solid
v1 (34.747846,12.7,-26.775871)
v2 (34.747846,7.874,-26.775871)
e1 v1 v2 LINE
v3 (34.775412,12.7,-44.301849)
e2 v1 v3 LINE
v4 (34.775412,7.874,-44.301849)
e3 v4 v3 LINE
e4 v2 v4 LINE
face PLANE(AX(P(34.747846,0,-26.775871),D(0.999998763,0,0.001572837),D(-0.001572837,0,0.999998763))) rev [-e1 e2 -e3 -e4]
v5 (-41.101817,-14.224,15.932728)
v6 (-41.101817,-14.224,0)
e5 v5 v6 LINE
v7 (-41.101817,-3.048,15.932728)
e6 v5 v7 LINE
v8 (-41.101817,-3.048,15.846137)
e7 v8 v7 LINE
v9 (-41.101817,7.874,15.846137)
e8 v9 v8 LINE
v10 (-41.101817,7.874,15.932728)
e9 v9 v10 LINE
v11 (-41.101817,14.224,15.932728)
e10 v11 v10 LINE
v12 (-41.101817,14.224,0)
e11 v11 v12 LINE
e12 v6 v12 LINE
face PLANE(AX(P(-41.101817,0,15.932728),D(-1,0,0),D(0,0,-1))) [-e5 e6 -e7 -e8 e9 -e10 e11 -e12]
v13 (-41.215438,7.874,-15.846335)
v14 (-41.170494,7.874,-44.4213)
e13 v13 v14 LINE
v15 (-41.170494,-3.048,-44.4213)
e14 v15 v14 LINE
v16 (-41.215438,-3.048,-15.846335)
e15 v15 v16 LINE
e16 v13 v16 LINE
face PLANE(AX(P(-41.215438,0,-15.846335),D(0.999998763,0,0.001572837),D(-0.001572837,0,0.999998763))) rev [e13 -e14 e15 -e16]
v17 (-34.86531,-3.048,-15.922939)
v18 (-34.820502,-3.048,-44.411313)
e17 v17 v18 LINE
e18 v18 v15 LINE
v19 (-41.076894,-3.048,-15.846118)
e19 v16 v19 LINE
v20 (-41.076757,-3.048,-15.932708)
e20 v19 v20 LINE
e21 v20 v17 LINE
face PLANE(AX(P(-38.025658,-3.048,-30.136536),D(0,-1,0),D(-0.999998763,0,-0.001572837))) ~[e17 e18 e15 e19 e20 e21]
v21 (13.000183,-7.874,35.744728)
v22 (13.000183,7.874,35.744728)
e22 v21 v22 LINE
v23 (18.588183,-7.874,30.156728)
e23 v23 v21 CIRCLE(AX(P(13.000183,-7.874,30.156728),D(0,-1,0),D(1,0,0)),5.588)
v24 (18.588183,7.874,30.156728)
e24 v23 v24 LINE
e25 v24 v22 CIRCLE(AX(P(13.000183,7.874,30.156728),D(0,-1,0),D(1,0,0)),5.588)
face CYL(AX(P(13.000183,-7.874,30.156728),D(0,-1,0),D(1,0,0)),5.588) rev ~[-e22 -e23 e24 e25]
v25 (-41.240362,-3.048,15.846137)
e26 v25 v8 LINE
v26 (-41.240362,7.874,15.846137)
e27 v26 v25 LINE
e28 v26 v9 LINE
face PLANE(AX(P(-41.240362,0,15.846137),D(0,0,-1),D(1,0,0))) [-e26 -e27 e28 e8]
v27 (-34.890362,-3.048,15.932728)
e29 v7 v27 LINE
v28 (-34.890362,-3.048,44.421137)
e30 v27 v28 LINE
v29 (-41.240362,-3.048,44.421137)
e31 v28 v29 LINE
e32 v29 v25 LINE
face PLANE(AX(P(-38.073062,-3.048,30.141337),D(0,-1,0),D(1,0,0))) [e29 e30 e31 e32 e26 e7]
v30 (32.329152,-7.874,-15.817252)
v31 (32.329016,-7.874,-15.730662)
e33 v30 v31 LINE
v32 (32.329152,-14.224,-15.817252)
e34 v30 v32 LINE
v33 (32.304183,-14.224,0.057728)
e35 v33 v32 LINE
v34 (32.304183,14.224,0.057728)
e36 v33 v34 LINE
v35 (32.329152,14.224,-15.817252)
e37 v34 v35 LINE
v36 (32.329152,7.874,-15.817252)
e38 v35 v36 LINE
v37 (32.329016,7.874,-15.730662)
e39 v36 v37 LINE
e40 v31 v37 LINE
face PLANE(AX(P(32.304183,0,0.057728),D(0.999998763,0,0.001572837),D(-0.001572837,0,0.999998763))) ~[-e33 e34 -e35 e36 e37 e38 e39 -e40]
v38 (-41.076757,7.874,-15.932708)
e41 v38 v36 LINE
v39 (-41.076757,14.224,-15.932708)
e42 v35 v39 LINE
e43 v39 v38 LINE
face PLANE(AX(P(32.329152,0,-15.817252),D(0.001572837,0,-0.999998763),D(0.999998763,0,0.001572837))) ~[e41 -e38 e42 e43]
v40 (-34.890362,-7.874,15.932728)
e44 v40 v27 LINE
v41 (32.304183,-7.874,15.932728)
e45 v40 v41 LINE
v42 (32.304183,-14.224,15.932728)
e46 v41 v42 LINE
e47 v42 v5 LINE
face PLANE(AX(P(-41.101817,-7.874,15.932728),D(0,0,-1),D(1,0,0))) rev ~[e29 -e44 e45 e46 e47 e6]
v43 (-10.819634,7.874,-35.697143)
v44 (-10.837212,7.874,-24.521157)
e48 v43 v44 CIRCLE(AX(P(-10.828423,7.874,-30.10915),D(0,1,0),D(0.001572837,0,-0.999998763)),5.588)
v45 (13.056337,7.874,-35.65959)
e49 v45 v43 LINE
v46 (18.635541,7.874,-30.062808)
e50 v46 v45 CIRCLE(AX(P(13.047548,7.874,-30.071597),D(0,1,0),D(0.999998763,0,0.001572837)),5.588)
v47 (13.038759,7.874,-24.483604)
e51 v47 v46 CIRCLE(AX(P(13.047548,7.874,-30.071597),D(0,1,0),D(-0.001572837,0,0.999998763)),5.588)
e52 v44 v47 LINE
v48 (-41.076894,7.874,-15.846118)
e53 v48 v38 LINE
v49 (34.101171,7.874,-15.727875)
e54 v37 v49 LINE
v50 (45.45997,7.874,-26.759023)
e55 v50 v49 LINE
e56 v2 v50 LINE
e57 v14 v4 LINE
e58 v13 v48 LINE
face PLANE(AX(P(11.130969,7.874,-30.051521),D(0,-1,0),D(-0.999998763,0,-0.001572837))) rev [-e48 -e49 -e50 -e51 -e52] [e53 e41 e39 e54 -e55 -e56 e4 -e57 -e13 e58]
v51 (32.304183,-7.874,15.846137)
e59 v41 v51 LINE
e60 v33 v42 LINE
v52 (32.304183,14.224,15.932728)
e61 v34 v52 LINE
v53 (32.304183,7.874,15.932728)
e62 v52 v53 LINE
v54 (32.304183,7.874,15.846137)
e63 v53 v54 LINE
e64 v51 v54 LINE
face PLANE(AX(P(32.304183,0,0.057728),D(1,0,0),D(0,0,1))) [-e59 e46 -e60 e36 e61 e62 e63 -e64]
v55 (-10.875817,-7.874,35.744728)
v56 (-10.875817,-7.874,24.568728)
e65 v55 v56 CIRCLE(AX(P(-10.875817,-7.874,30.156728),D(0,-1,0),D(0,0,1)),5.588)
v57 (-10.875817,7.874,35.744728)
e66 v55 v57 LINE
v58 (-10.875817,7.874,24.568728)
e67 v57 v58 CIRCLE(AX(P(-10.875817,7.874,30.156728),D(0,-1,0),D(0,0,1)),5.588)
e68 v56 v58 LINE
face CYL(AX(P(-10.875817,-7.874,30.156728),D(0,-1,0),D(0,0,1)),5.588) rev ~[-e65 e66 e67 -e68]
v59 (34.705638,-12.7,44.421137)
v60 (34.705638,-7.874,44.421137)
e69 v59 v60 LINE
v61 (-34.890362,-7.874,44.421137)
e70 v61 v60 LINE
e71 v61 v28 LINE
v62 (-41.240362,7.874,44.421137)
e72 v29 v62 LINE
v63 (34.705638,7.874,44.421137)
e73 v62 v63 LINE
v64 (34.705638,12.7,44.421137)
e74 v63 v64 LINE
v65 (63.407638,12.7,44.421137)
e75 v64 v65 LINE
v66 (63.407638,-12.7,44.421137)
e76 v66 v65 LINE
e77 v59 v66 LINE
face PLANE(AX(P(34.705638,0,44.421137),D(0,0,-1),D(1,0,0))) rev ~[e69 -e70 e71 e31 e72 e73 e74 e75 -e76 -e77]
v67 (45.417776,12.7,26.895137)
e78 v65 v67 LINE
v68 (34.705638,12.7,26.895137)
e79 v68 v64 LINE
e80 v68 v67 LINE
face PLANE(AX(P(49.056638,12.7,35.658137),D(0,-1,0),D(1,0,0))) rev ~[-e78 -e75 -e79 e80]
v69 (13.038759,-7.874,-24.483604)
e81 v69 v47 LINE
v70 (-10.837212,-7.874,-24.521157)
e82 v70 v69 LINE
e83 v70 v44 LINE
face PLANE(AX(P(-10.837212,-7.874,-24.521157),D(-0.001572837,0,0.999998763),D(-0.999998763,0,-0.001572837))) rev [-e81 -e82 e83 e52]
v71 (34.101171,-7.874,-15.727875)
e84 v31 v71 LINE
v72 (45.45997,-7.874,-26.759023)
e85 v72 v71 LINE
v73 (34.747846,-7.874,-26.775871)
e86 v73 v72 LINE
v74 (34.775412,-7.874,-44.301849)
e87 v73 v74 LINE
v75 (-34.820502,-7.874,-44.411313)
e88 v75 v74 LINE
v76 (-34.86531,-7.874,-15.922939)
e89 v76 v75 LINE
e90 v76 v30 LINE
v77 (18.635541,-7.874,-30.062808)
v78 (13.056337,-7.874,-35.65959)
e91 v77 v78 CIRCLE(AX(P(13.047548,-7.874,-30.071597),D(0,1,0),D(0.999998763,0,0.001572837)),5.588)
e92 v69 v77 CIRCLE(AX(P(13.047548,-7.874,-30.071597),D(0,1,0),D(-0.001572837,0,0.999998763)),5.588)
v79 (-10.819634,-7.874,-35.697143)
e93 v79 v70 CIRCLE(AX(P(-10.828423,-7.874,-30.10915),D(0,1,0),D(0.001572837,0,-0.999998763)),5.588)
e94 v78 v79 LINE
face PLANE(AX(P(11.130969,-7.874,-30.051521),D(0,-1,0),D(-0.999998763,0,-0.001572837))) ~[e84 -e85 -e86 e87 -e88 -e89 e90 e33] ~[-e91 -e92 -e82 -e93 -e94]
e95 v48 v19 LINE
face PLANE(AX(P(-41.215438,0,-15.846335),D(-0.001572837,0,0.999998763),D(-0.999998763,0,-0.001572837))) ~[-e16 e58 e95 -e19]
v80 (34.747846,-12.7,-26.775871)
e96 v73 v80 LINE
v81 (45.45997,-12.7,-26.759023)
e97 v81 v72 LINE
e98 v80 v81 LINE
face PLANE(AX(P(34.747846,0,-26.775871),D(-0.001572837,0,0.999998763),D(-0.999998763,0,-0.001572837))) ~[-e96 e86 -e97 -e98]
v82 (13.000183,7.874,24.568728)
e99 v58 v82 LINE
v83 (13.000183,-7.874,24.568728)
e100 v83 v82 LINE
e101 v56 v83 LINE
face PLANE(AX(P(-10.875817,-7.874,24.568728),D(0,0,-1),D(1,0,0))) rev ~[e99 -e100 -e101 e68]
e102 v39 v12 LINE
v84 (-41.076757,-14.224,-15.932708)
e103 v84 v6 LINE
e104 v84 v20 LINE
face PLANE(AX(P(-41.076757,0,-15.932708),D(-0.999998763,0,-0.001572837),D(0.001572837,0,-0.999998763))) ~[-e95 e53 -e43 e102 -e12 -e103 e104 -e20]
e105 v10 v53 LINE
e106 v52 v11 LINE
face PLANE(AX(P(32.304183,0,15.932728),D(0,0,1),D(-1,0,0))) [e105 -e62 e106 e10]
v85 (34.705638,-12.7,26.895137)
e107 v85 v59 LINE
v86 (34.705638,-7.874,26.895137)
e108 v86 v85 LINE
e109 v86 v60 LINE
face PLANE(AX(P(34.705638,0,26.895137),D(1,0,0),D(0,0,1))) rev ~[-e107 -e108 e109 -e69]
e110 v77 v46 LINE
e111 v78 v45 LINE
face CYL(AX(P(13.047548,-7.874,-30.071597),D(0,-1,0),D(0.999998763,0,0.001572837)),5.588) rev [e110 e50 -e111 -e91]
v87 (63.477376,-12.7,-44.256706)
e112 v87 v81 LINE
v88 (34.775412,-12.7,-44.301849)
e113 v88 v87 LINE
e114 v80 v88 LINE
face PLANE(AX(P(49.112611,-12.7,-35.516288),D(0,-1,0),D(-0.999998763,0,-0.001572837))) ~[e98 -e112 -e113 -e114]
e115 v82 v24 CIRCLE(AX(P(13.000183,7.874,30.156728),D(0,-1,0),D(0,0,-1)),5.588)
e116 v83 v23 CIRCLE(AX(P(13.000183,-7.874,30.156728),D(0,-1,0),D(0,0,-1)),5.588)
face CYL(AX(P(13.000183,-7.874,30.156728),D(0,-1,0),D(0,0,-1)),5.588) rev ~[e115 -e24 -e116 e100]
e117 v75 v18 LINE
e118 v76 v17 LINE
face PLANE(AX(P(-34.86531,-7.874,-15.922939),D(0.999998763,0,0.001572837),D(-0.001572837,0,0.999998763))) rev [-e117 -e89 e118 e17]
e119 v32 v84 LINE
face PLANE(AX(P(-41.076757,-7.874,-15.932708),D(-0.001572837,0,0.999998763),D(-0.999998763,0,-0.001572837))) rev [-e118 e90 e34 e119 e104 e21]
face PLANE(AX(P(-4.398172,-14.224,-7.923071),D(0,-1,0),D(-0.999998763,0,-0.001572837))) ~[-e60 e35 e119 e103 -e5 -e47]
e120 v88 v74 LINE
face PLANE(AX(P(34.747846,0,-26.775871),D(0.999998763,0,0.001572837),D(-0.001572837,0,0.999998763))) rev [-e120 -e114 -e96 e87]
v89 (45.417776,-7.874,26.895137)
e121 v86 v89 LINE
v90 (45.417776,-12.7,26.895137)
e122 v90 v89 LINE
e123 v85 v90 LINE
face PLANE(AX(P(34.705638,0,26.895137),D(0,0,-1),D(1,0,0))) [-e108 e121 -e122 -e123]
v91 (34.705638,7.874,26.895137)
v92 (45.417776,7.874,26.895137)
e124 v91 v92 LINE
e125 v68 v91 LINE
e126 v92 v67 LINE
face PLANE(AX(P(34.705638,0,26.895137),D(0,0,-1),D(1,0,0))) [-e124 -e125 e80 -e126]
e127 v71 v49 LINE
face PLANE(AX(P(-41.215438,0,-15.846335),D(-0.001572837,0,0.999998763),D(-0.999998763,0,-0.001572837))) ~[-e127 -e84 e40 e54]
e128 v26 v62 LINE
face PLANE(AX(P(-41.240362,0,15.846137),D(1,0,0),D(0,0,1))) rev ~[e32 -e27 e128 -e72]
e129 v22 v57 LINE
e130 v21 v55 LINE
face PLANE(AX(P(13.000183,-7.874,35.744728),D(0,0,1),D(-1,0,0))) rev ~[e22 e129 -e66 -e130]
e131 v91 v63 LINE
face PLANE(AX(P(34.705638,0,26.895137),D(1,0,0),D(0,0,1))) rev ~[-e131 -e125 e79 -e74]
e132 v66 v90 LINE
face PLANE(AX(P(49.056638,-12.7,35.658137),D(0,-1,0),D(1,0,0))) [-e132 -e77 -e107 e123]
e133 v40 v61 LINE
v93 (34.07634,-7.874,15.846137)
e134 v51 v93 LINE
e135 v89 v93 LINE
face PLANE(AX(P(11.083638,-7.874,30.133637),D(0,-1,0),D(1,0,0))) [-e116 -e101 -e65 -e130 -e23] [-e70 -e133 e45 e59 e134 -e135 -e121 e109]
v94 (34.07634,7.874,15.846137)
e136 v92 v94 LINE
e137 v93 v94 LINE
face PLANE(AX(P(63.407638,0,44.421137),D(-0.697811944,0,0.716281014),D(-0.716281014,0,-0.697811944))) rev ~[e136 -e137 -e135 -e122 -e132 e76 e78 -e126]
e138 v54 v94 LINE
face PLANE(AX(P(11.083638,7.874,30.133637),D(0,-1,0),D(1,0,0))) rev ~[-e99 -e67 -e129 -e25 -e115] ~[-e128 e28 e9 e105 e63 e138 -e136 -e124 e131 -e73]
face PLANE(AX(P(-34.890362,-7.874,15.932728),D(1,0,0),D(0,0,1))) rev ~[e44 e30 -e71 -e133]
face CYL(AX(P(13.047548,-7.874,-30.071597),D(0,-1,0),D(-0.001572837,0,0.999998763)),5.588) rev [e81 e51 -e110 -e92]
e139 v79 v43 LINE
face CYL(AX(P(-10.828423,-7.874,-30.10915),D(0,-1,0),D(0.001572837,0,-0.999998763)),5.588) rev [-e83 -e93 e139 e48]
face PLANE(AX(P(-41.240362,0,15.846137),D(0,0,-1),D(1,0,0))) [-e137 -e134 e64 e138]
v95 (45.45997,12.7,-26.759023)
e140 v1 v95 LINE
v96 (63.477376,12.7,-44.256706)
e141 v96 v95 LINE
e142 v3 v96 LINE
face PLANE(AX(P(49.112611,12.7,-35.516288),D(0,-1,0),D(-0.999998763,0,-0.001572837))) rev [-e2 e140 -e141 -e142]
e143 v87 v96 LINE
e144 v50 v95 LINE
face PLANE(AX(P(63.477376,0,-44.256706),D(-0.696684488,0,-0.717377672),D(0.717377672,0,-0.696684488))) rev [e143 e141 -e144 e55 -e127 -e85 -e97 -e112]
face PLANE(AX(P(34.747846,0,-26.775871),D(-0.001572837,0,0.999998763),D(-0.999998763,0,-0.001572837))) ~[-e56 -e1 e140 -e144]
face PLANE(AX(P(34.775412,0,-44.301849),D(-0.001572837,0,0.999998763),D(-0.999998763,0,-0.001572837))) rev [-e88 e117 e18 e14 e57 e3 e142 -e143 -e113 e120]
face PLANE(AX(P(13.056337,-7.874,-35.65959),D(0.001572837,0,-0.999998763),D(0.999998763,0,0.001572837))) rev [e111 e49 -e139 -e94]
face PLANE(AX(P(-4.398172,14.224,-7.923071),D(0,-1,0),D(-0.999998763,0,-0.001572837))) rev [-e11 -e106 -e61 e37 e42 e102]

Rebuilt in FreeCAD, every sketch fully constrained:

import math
import FreeCAD as App
import Part
import Sketcher
from FreeCAD import Vector
Q = App.Units.Quantity


def add_polygon(sketch, points):
    """Adds a closed chain of lines whose ends are joined by coincident constraints."""
    first, n = sketch.GeometryCount, len(points)
    for a, b in zip(points, points[1:] + points[:1]):
        sketch.addGeometry(Part.LineSegment(App.Vector(*a, 0), App.Vector(*b, 0)), False)
    for i in range(n):
        sketch.addConstraint(Sketcher.Constraint("Coincident", first + i, 2, first + (i + 1) % n, 1))

doc = App.newDocument("Part")
body = doc.addObject("PartDesign::Body", "Body")

# Sketch on XZ plane
sketch1 = doc.addObject("Sketcher::SketchObject", "Sketch")
body.addObject(sketch1)
sketch1.AttachmentSupport = (doc.XZ_Plane, [""])
sketch1.MapMode = "FlatFace"
add_polygon(sketch1, [(32.304183, 0.057728), (32.304183, 15.932728), (-41.101817, 15.932728), (-41.101817, 0)])  # lines 0-3
sketch1.addConstraint([
    Sketcher.Constraint("Vertical", 0),
    Sketcher.Constraint("Horizontal", 1),
    Sketcher.Constraint("Vertical", 2),
    Sketcher.Constraint("PointOnObject", 2, 2, -1),
    Sketcher.Constraint("DistanceX", 1, 2, 1, 1, Q("2.89 in")),
    Sketcher.Constraint("DistanceY", 0, 1, 0, 2, Q("0.625 in")),
    Sketcher.Constraint("DistanceY", 2, 2, 2, 1, 15.932728),
    Sketcher.Constraint("DistanceX", -1, 1, 0, 2, 32.304183),
])
pad1 = doc.addObject("PartDesign::Pad", "Pad")
body.addObject(pad1)
pad1.Profile = sketch1
pad1.Length = Q("1.12 in")
pad1.Midplane = True

# Sketch on XZ plane
sketch2 = doc.addObject("Sketcher::SketchObject", "Sketch001")
body.addObject(sketch2)
sketch2.AttachmentSupport = (doc.XZ_Plane, [""])
sketch2.MapMode = "FlatFace"
add_polygon(sketch2, [(-41.240362, 44.421137), (-41.240362, 15.846137), (63.407638, 15.846137), (63.407638, 44.421137)])  # lines 0-3
sketch2.addConstraint([
    Sketcher.Constraint("Vertical", 0),
    Sketcher.Constraint("Horizontal", 1),
    Sketcher.Constraint("Vertical", 2),
    Sketcher.Constraint("Horizontal", 3),
    Sketcher.Constraint("DistanceX", 1, 1, 1, 2, Q("4.12 in")),
    Sketcher.Constraint("DistanceY", 0, 2, 0, 1, Q("1.125 in")),
    Sketcher.Constraint("DistanceX", 0, 2, -1, 1, 41.240362),
    Sketcher.Constraint("DistanceY", -1, 1, 0, 2, 15.846137),
])
pad2 = doc.addObject("PartDesign::Pad", "Pad001")
body.addObject(pad2)
pad2.Profile = sketch2
pad2.Length = Q("0.62 in")
pad2.Midplane = True

# Sketch on XZ plane
sketch3 = doc.addObject("Sketcher::SketchObject", "Sketch002")
body.addObject(sketch3)
sketch3.AttachmentSupport = (doc.XZ_Plane, [""])
sketch3.MapMode = "FlatFace"
sketch3.AttachmentOffset = App.Placement(Vector(0, 0, 0.31 * 25.4), App.Rotation())
add_polygon(sketch3, [(-34.890362, 44.421137), (-41.240362, 44.421137), (-41.240362, 15.846137), (-41.101817, 15.846137), (-41.101817, 15.932728), (-34.890362, 15.932728)])  # lines 0-5
sketch3.addConstraint([
    Sketcher.Constraint("Horizontal", 0),
    Sketcher.Constraint("Vertical", 1),
    Sketcher.Constraint("Horizontal", 2),
    Sketcher.Constraint("Vertical", 3),
    Sketcher.Constraint("Horizontal", 4),
    Sketcher.Constraint("Vertical", 5),
    Sketcher.Constraint("DistanceX", 0, 2, 0, 1, Q("0.25 in")),
    Sketcher.Constraint("DistanceY", 1, 2, 1, 1, Q("1.125 in")),
    Sketcher.Constraint("DistanceY", 3, 1, 3, 2, 0.086591),
    Sketcher.Constraint("DistanceX", 2, 1, 2, 2, 0.138545),
    Sketcher.Constraint("DistanceX", 0, 2, -1, 1, 41.240362),
    Sketcher.Constraint("DistanceY", -1, 1, 0, 2, 44.421137),
])
pocket1 = doc.addObject("PartDesign::Pocket", "Pocket")
body.addObject(pocket1)
pocket1.Profile = sketch3
pocket1.Length = Q("0.19 in")

# Sketch on XZ plane
sketch4 = doc.addObject("Sketcher::SketchObject", "Sketch003")
body.addObject(sketch4)
sketch4.AttachmentSupport = (doc.XZ_Plane, [""])
sketch4.MapMode = "FlatFace"
add_polygon(sketch4, [(34.705638, 44.421137), (34.705638, 26.895137), (63.407638, 26.895137), (63.407638, 44.421137)])  # lines 0-3
sketch4.addConstraint([
    Sketcher.Constraint("Vertical", 0),
    Sketcher.Constraint("Horizontal", 1),
    Sketcher.Constraint("Vertical", 2),
    Sketcher.Constraint("Horizontal", 3),
    Sketcher.Constraint("DistanceX", 1, 1, 1, 2, Q("1.13 in")),
    Sketcher.Constraint("DistanceY", 0, 2, 0, 1, Q("0.69 in")),
    Sketcher.Constraint("DistanceX", -1, 1, 0, 2, 34.705638),
    Sketcher.Constraint("DistanceY", -1, 1, 0, 2, 26.895137),
])
pad3 = doc.addObject("PartDesign::Pad", "Pad002")
body.addObject(pad3)
pad3.Profile = sketch4
pad3.Length = Q("1 in")
pad3.Midplane = True

# Sketch on XZ plane
sketch5 = doc.addObject("Sketcher::SketchObject", "Sketch004")
body.addObject(sketch5)
sketch5.AttachmentSupport = (doc.XZ_Plane, [""])
sketch5.MapMode = "FlatFace"
add_polygon(sketch5, [(63.407638, 44.421137), (34.05381, 15.824188), (63.407638, 15.846137)])  # lines 0-2
sketch5.addConstraint([
    Sketcher.Constraint("Vertical", 2),
    Sketcher.Constraint("DistanceY", 2, 1, 2, 2, Q("1.125 in")),
    Sketcher.Constraint("DistanceX", -1, 1, 0, 2, 34.05381),
    Sketcher.Constraint("DistanceX", -1, 1, 1, 2, 63.407638),
    Sketcher.Constraint("DistanceY", 0, 2, 1, 2, 0.02195),
    Sketcher.Constraint("DistanceY", -1, 1, 0, 2, 15.824188),
])
pocket2 = doc.addObject("PartDesign::Pocket", "Pocket001")
body.addObject(pocket2)
pocket2.Profile = sketch5
pocket2.Length = Q("1 in")
pocket2.Midplane = True

# Sketch on XZ plane
sketch6 = doc.addObject("Sketcher::SketchObject", "Sketch005")
body.addObject(sketch6)
sketch6.AttachmentSupport = (doc.XZ_Plane, [""])
sketch6.MapMode = "FlatFace"
sketch6.AttachmentOffset = App.Placement(Vector(0, 0, 0.31 * 25.4), App.Rotation())
sketch6.addGeometry([
    Part.ArcOfCircle(Part.Circle(Vector(13.000183, 30.156728, 0), Vector(0, 0, 1), 5.588), math.radians(-90), math.radians(0)),  # 0
    Part.ArcOfCircle(Part.Circle(Vector(13.000183, 30.156728, 0), Vector(0, 0, 1), 5.588), math.radians(0), math.radians(90)),  # 1
    Part.LineSegment(Vector(13.000183, 35.744728, 0), Vector(-10.875817, 35.744728, 0)),  # 2
    Part.ArcOfCircle(Part.Circle(Vector(-10.875817, 30.156728, 0), Vector(0, 0, 1), 5.588), math.radians(90), math.radians(270)),  # 3
    Part.LineSegment(Vector(-10.875817, 24.568728, 0), Vector(13.000183, 24.568728, 0)),  # 4
], False)
sketch6.addConstraint([
    Sketcher.Constraint("Tangent", 0, 2, 1, 1),
    Sketcher.Constraint("Tangent", 1, 2, 2, 1),
    Sketcher.Constraint("Tangent", 2, 2, 3, 1),
    Sketcher.Constraint("Tangent", 3, 2, 4, 1),
    Sketcher.Constraint("Tangent", 4, 2, 0, 1),
    Sketcher.Constraint("Horizontal", 2),
    Sketcher.Constraint("Horizontal", 4),
    Sketcher.Constraint("Equal", 0, 1),
    Sketcher.Constraint("Horizontal", 3, 3, 0, 2),
    Sketcher.Constraint("Radius", 0, Q("0.22 in")),
    Sketcher.Constraint("DistanceX", 2, 2, 2, 1, Q("0.94 in")),
    Sketcher.Constraint("DistanceX", -1, 1, 0, 3, 13.000183),
    Sketcher.Constraint("DistanceY", -1, 1, 0, 3, 30.156728),
])
pocket3 = doc.addObject("PartDesign::Pocket", "Pocket002")
body.addObject(pocket3)
pocket3.Profile = sketch6
pocket3.Length = Q("1 in")
body2 = doc.addObject("PartDesign::Body", "Body001")
doc.recompute()

body2.BaseFeature = body
doc.recompute()

mirroring = doc.addObject("Part::Mirroring", "Mirroring")
mirroring.Source = body
mirroring.Base = Vector(-4.398817, 0, 0.028864)
mirroring.Normal = Vector(0.000786419, 0, -0.999999691)
body3 = doc.addObject("PartDesign::Body", "Body002")
body3.BaseFeature = mirroring
boolean = doc.addObject("PartDesign::Boolean", "Boolean")
body2.addObject(boolean)
boolean.Type = "Fuse"
boolean.addObjects([body3])
doc.recompute()
mirroring.Visibility = False

doc.recompute()
